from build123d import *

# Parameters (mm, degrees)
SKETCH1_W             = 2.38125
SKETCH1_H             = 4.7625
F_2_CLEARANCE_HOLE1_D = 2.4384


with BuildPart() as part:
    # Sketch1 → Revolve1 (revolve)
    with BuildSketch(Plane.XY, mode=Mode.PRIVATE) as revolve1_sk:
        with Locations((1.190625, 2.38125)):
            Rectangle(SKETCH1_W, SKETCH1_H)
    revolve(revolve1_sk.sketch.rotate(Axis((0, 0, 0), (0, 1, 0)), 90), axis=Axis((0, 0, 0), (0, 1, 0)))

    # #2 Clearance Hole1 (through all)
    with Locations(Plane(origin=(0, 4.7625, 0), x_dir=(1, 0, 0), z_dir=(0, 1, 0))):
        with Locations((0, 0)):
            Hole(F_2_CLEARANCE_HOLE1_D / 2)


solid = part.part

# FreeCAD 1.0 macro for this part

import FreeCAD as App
import Part
import Sketcher
from FreeCAD import Vector
Q = App.Units.Quantity


def add_polygon(sketch, points):
    """Adds a closed chain of lines whose ends are joined by coincident constraints."""
    first, n = sketch.GeometryCount, len(points)
    for a, b in zip(points, points[1:] + points[:1]):
        sketch.addGeometry(Part.LineSegment(App.Vector(*a, 0), App.Vector(*b, 0)), False)
    for i in range(n):
        sketch.addConstraint(Sketcher.Constraint("Coincident", first + i, 2, first + (i + 1) % n, 1))

doc = App.newDocument("Part")
body = doc.addObject("PartDesign::Body", "Body")

# Sketch on XY plane
sketch1 = doc.addObject("Sketcher::SketchObject", "Sketch")
body.addObject(sketch1)
sketch1.AttachmentSupport = (doc.XY_Plane, [""])
sketch1.MapMode = "FlatFace"
add_polygon(sketch1, [(0, 4.7625), (0, 0), (2.38125, 0), (2.38125, 4.7625)])  # lines 0-3
sketch1.addConstraint(Sketcher.Constraint("Vertical", 0))
sketch1.addConstraint(Sketcher.Constraint("Horizontal", 1))
sketch1.addConstraint(Sketcher.Constraint("Vertical", 2))
sketch1.addConstraint(Sketcher.Constraint("Horizontal", 3))
sketch1.addConstraint(Sketcher.Constraint("Coincident", 0, 2, -1, 1))
sketch1.addConstraint(Sketcher.Constraint("DistanceX", 1, 1, 1, 2, Q("0.09375 in")))
sketch1.addConstraint(Sketcher.Constraint("DistanceY", 0, 2, 0, 1, Q("0.1875 in")))
revolution = doc.addObject("PartDesign::Revolution", "Revolution")
body.addObject(revolution)
revolution.Profile = sketch1
revolution.ReferenceAxis = (sketch1, ["V_Axis"])
revolution.Angle = 360

# Sketch on XZ plane
sketch2 = doc.addObject("Sketcher::SketchObject", "Sketch001")
body.addObject(sketch2)
sketch2.AttachmentSupport = (doc.XZ_Plane, [""])
sketch2.MapMode = "FlatFace"
sketch2.AttachmentOffset = App.Placement(Vector(0, 0, -0.1875 * 25.4), App.Rotation())
sketch2.addGeometry(Part.Circle(Vector(0, 0, 0), Vector(0, 0, 1), 1.2192), False)
sketch2.addConstraint(Sketcher.Constraint("Coincident", 0, 3, -1, 1))
sketch2.addConstraint(Sketcher.Constraint("Diameter", 0, Q("0.096 in")))
doc.recompute()
hole = doc.addObject("PartDesign::Hole", "Hole")
body.addObject(hole)
hole.Profile = sketch2
hole.ThreadType = "None"
hole.Diameter = Q("0.096 in")
hole.DepthType = "ThroughAll"
hole.Reversed = True

doc.recompute()
